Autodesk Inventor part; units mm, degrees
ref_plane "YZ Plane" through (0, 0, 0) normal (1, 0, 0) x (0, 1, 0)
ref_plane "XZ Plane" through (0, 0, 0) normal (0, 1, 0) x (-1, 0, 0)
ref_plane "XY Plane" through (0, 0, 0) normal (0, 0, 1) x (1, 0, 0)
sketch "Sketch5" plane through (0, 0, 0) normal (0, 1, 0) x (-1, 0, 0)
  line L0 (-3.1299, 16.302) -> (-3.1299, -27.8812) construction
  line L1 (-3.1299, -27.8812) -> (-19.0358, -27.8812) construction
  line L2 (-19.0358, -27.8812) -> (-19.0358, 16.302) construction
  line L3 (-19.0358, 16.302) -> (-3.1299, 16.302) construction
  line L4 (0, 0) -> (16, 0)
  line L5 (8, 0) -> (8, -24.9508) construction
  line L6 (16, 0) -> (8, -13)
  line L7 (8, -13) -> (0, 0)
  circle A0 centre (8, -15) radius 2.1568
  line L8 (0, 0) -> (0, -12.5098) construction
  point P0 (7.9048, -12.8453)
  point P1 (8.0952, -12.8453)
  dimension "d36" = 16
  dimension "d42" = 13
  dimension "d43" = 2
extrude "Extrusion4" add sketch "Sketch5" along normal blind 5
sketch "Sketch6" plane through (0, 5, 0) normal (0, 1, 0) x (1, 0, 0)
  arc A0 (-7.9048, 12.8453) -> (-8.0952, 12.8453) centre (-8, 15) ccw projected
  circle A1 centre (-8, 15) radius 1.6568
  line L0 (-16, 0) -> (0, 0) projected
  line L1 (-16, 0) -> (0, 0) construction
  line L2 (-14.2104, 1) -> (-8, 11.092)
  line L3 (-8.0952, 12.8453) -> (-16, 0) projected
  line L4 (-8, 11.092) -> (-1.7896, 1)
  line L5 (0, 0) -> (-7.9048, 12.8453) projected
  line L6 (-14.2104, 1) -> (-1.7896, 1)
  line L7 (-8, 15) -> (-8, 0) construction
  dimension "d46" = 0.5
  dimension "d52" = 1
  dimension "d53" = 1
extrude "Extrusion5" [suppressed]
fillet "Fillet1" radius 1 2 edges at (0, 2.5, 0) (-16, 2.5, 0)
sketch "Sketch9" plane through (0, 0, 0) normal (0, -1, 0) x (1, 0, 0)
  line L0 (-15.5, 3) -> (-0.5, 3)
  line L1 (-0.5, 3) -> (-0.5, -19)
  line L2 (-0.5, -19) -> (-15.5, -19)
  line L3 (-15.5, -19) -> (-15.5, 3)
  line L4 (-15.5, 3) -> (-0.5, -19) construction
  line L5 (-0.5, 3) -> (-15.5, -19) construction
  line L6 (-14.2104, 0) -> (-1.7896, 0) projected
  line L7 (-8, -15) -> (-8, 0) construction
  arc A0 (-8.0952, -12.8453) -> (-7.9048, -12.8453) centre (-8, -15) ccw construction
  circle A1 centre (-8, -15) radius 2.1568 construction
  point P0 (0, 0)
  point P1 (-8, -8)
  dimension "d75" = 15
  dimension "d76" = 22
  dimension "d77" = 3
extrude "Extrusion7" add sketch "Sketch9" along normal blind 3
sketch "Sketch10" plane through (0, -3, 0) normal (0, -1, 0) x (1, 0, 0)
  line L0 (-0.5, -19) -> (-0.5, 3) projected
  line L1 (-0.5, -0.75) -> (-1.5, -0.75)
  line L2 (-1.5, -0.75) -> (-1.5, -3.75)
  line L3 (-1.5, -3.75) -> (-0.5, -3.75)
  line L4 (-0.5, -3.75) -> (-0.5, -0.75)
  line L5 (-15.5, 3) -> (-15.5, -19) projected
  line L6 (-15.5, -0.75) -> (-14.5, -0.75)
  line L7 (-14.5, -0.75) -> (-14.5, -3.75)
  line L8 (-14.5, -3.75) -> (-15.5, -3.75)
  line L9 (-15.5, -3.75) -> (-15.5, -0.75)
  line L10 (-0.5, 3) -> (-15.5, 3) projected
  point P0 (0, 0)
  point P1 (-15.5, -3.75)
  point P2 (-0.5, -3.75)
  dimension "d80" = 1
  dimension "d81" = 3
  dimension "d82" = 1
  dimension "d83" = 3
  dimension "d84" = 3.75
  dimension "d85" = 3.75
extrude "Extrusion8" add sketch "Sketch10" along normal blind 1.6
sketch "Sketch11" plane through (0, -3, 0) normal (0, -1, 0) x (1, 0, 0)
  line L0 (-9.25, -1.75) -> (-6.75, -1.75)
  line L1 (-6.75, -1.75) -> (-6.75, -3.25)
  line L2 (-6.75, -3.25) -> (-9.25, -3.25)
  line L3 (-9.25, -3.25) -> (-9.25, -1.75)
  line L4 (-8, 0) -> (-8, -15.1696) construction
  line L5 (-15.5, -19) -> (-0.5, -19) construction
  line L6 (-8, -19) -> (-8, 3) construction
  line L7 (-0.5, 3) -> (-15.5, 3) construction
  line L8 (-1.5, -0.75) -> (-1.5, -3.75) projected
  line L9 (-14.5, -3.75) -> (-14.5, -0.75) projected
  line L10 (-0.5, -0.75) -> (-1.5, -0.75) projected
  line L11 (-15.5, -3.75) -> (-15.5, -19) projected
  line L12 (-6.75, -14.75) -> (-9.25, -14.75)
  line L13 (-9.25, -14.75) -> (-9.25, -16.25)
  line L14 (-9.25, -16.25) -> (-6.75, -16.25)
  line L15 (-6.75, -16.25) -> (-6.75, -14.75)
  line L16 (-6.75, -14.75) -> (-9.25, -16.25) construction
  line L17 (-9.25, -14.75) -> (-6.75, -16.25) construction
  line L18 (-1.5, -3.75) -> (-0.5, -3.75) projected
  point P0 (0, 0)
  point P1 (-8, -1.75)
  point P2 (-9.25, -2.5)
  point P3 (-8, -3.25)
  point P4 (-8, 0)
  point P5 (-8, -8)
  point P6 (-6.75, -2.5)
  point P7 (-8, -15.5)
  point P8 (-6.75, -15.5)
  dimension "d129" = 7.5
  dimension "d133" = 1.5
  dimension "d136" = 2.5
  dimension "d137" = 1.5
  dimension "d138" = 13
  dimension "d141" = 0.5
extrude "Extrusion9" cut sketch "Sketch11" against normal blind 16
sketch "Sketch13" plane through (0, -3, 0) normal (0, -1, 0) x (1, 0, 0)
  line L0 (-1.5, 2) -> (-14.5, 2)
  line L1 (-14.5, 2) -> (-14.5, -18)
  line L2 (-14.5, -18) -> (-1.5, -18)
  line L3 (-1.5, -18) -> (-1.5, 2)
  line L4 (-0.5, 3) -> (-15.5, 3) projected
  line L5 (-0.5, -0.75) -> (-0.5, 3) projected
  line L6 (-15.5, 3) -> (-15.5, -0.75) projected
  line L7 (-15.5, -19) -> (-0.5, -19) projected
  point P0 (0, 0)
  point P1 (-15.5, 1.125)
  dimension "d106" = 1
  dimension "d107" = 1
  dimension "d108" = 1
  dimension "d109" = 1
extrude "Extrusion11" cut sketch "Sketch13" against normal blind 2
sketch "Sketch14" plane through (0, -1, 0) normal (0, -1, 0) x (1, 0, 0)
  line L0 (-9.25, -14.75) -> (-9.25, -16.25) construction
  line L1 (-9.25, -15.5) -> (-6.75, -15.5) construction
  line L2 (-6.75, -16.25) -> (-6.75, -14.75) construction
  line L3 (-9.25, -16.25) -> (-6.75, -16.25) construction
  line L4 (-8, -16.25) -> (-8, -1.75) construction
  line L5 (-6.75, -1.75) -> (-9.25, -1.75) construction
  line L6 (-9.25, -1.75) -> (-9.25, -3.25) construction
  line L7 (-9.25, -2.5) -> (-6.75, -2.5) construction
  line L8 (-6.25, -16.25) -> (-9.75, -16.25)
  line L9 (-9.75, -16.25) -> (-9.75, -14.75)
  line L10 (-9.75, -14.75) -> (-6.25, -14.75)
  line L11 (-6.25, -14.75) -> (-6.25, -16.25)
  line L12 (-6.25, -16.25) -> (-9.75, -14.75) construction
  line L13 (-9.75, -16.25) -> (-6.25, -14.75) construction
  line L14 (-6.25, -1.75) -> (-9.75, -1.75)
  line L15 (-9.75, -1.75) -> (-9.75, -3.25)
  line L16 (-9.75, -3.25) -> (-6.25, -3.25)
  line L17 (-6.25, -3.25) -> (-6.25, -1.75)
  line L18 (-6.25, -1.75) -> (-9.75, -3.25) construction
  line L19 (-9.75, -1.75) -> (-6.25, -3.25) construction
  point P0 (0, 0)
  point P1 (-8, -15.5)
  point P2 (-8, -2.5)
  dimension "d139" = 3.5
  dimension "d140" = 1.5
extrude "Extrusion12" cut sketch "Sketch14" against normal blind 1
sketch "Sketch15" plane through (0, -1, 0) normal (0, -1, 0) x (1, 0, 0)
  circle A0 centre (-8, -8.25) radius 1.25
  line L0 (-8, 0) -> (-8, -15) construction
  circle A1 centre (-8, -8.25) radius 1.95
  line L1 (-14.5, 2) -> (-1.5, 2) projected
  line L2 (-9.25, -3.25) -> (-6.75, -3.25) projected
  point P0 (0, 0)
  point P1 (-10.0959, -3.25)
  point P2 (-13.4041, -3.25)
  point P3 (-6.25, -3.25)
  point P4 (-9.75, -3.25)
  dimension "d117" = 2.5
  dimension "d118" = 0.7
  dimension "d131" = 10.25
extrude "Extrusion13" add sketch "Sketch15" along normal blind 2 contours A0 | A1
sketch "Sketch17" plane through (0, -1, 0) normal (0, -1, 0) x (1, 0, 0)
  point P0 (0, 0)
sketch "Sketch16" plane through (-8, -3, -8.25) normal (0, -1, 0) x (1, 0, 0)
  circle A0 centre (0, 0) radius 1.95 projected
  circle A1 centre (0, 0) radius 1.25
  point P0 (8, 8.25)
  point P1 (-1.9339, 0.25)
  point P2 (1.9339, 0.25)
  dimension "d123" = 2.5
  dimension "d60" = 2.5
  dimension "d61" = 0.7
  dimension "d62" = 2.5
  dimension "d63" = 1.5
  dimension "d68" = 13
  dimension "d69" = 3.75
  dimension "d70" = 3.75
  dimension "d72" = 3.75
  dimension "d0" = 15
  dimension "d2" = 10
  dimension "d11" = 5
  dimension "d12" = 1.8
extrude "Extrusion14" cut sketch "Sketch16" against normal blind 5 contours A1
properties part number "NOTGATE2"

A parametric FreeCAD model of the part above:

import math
import FreeCAD as App
import Part
import Sketcher

V = App.Vector
Q = App.Units.Quantity


def edges_at(feature, points):
    """Names of the edges that pass closest to the given points."""
    edges = feature.Shape.Edges
    near = lambda p: min(range(len(edges)), key=lambda i: edges[i].distToShape(Part.Vertex(*p))[0])
    return sorted({f"Edge{near(p) + 1}" for p in points})


def add_polygon(sketch, points):
    """Adds a closed chain of lines whose ends are joined by coincident constraints."""
    first, n = sketch.GeometryCount, len(points)
    for a, b in zip(points, points[1:] + points[:1]):
        sketch.addGeometry(Part.LineSegment(App.Vector(*a, 0), App.Vector(*b, 0)), False)
    for i in range(n):
        sketch.addConstraint(Sketcher.Constraint("Coincident", first + i, 2, first + (i + 1) % n, 1))

doc = App.newDocument("Part")
body = doc.addObject("PartDesign::Body", "Body")

# Sketch on XZ plane
sketch1 = body.newObject("Sketcher::SketchObject", "Sketch")
sketch1.AttachmentSupport = (doc.getObject("XZ_Plane"), [""])
sketch1.MapMode = "FlatFace"
sketch1.addGeometry([
    Part.LineSegment(V(-16, 0, 0), V(0, 0, 0)),
    Part.LineSegment(V(0, 0, 0), V(-7.904801, -12.845302, 0)),
    Part.ArcOfCircle(Part.Circle(V(-8, -15, 0), V(0, 0, 1), 2.1568), math.radians(92.529794), math.radians(447.470206)),
    Part.LineSegment(V(-8.095199, -12.845302, 0), V(-16, 0, 0)),
], False)
sketch1.addConstraint([
    Sketcher.Constraint("Coincident", 0, 2, 1, 1),
    Sketcher.Constraint("Coincident", 1, 2, 2, 2),
    Sketcher.Constraint("Coincident", 2, 1, 3, 1),
    Sketcher.Constraint("Coincident", 3, 2, 0, 1),
    Sketcher.Constraint("Horizontal", 0),
    Sketcher.Constraint("Coincident", 0, 2, -1, 1),
    Sketcher.Constraint("Horizontal", 1, 2, 2, 1),
    Sketcher.Constraint("Equal", 1, 3),
    Sketcher.Constraint("DistanceX", 0, 1, 0, 2, Q("16 mm")),
    Sketcher.Constraint("DistanceY", 2, 3, -1, 1, Q("15 mm")),
    Sketcher.Constraint("Radius", 2, Q("2.1568 mm")),
    Sketcher.Constraint("Distance", 1, Q("15.0827 mm")),
])
pad1 = body.newObject("PartDesign::Pad", "Pad")
pad1.Profile = sketch1
pad1.Length = 5
pad1.Reversed = True
doc.recompute()

fillet = body.newObject("PartDesign::Fillet", "Fillet")
fillet.Base = (pad1, edges_at(pad1, [(0, 2.5, 0), (-16, 2.5, 0)]))
fillet.Radius = 1

# Sketch on XZ plane
sketch2 = body.newObject("Sketcher::SketchObject", "Sketch001")
sketch2.AttachmentSupport = (doc.getObject("XZ_Plane"), [""])
sketch2.MapMode = "FlatFace"
add_polygon(sketch2, [(-0.5, 3), (-15.5, 3), (-15.5, -19), (-0.5, -19)])  # lines 0-3
sketch2.addConstraint([
    Sketcher.Constraint("Horizontal", 0),
    Sketcher.Constraint("Vertical", 1),
    Sketcher.Constraint("Horizontal", 2),
    Sketcher.Constraint("Vertical", 3),
    Sketcher.Constraint("DistanceX", 0, 2, 0, 1, Q("15 mm")),
    Sketcher.Constraint("DistanceY", 1, 2, 1, 1, Q("22 mm")),
    Sketcher.Constraint("DistanceY", -1, 1, 0, 2, Q("3 mm")),
    Sketcher.Constraint("DistanceX", 0, 2, -1, 1, Q("15.5 mm")),
])
pad2 = body.newObject("PartDesign::Pad", "Pad001")
pad2.Profile = sketch2
pad2.Length = 3

# Sketch on XZ plane
sketch3 = body.newObject("Sketcher::SketchObject", "Sketch002")
sketch3.AttachmentSupport = (doc.getObject("XZ_Plane"), [""])
sketch3.MapMode = "FlatFace"
sketch3.AttachmentOffset = App.Placement(V(0, 0, 3), App.Rotation())
add_polygon(sketch3, [(-1.5, -3.75), (-0.5, -3.75), (-0.5, -0.75), (-1.5, -0.75)])  # lines 0-3
add_polygon(sketch3, [(-14.5, -0.75), (-15.5, -0.75), (-15.5, -3.75), (-14.5, -3.75)])  # lines 4-7
sketch3.addConstraint([
    Sketcher.Constraint("Horizontal", 0),
    Sketcher.Constraint("Vertical", 1),
    Sketcher.Constraint("Horizontal", 2),
    Sketcher.Constraint("Vertical", 3),
    Sketcher.Constraint("Horizontal", 4),
    Sketcher.Constraint("Vertical", 5),
    Sketcher.Constraint("Horizontal", 6),
    Sketcher.Constraint("Vertical", 7),
    Sketcher.Constraint("Horizontal", 2, 2, 4, 2),
    Sketcher.Constraint("Horizontal", 3, 2, 5, 2),
    Sketcher.Constraint("Equal", 2, 4),
    Sketcher.Constraint("DistanceX", 0, 1, 0, 2, Q("1 mm")),
    Sketcher.Constraint("DistanceY", 1, 1, 1, 2, Q("3 mm")),
    Sketcher.Constraint("DistanceY", 0, 2, -1, 1, Q("3.75 mm")),
    Sketcher.Constraint("DistanceX", 4, 2, 2, 2, Q("14 mm")),
    Sketcher.Constraint("DistanceX", 0, 2, -1, 1, Q("0.5 mm")),
])
pad3 = body.newObject("PartDesign::Pad", "Pad002")
pad3.Profile = sketch3
pad3.Length = 1.6

# Sketch on XZ plane
sketch4 = body.newObject("Sketcher::SketchObject", "Sketch003")
sketch4.AttachmentSupport = (doc.getObject("XZ_Plane"), [""])
sketch4.MapMode = "FlatFace"
sketch4.AttachmentOffset = App.Placement(V(0, 0, 3), App.Rotation())
add_polygon(sketch4, [(-6.75, -1.75), (-9.25, -1.75), (-9.25, -3.25), (-6.75, -3.25)])  # lines 0-3
add_polygon(sketch4, [(-6.75, -16.25), (-6.75, -14.75), (-9.25, -14.75), (-9.25, -16.25)])  # lines 4-7
sketch4.addConstraint([
    Sketcher.Constraint("Horizontal", 0),
    Sketcher.Constraint("Vertical", 1),
    Sketcher.Constraint("Horizontal", 2),
    Sketcher.Constraint("Vertical", 3),
    Sketcher.Constraint("Vertical", 4),
    Sketcher.Constraint("Horizontal", 5),
    Sketcher.Constraint("Vertical", 6),
    Sketcher.Constraint("Horizontal", 7),
    Sketcher.Constraint("Vertical", 3, 2, 4, 2),
    Sketcher.Constraint("Vertical", 1, 2, 5, 2),
    Sketcher.Constraint("Equal", 3, 4),
    Sketcher.Constraint("DistanceX", 0, 2, 0, 1, Q("2.5 mm")),
    Sketcher.Constraint("DistanceY", 1, 2, 1, 1, Q("1.5 mm")),
    Sketcher.Constraint("DistanceY", 4, 2, 3, 2, Q("13 mm")),
    Sketcher.Constraint("DistanceX", 0, 2, -1, 1, Q("9.25 mm")),
    Sketcher.Constraint("DistanceY", 0, 2, -1, 1, Q("1.75 mm")),
])
pocket1 = body.newObject("PartDesign::Pocket", "Pocket")
pocket1.Profile = sketch4
pocket1.Length = 16

# Sketch on XZ plane
sketch5 = body.newObject("Sketcher::SketchObject", "Sketch004")
sketch5.AttachmentSupport = (doc.getObject("XZ_Plane"), [""])
sketch5.MapMode = "FlatFace"
sketch5.AttachmentOffset = App.Placement(V(0, 0, 3), App.Rotation())
add_polygon(sketch5, [(-1.5, -18), (-1.5, 2), (-14.5, 2), (-14.5, -18)])  # lines 0-3
sketch5.addConstraint([
    Sketcher.Constraint("Vertical", 0),
    Sketcher.Constraint("Horizontal", 1),
    Sketcher.Constraint("Vertical", 2),
    Sketcher.Constraint("Horizontal", 3),
    Sketcher.Constraint("DistanceX", 1, 2, 1, 1, Q("13 mm")),
    Sketcher.Constraint("DistanceY", 0, 1, 0, 2, Q("20 mm")),
    Sketcher.Constraint("DistanceY", -1, 1, 0, 2, Q("2 mm")),
    Sketcher.Constraint("DistanceX", 0, 2, -1, 1, Q("1.5 mm")),
])
pocket2 = body.newObject("PartDesign::Pocket", "Pocket001")
pocket2.Profile = sketch5
pocket2.Length = 2

# Sketch on XZ plane
sketch6 = body.newObject("Sketcher::SketchObject", "Sketch005")
sketch6.AttachmentSupport = (doc.getObject("XZ_Plane"), [""])
sketch6.MapMode = "FlatFace"
sketch6.AttachmentOffset = App.Placement(V(0, 0, 1), App.Rotation())
add_polygon(sketch6, [(-9.75, -16.25), (-6.25, -16.25), (-6.25, -14.75), (-9.75, -14.75)])  # lines 0-3
add_polygon(sketch6, [(-6.25, -3.25), (-6.25, -1.75), (-9.75, -1.75), (-9.75, -3.25)])  # lines 4-7
sketch6.addConstraint([
    Sketcher.Constraint("Horizontal", 0),
    Sketcher.Constraint("Vertical", 1),
    Sketcher.Constraint("Horizontal", 2),
    Sketcher.Constraint("Vertical", 3),
    Sketcher.Constraint("Vertical", 4),
    Sketcher.Constraint("Horizontal", 5),
    Sketcher.Constraint("Vertical", 6),
    Sketcher.Constraint("Horizontal", 7),
    Sketcher.Constraint("Vertical", 1, 2, 4, 2),
    Sketcher.Constraint("Vertical", 3, 2, 5, 2),
    Sketcher.Constraint("Equal", 3, 4),
    Sketcher.Constraint("DistanceX", 0, 1, 0, 2, Q("3.5 mm")),
    Sketcher.Constraint("DistanceY", 1, 1, 1, 2, Q("1.5 mm")),
    Sketcher.Constraint("DistanceY", 1, 2, 4, 2, Q("13 mm")),
    Sketcher.Constraint("DistanceX", 0, 2, -1, 1, Q("6.25 mm")),
    Sketcher.Constraint("DistanceY", 0, 2, -1, 1, Q("16.25 mm")),
])
pocket3 = body.newObject("PartDesign::Pocket", "Pocket002")
pocket3.Profile = sketch6
pocket3.Length = 1

# Sketch on XZ plane
sketch7 = body.newObject("Sketcher::SketchObject", "Sketch006")
sketch7.AttachmentSupport = (doc.getObject("XZ_Plane"), [""])
sketch7.MapMode = "FlatFace"
sketch7.AttachmentOffset = App.Placement(V(0, 0, 1), App.Rotation())
sketch7.addGeometry(Part.Circle(V(-8, -8.25, 0), V(0, 0, 1), 1.95), False)
sketch7.addConstraint([
    Sketcher.Constraint("Diameter", 0, Q("3.9 mm")),
    Sketcher.Constraint("DistanceX", 0, 3, -1, 1, Q("8 mm")),
    Sketcher.Constraint("DistanceY", 0, 3, -1, 1, Q("8.25 mm")),
])
pad4 = body.newObject("PartDesign::Pad", "Pad003")
pad4.Profile = sketch7
pad4.Length = 2

# Sketch on XZ plane
sketch8 = body.newObject("Sketcher::SketchObject", "Sketch007")
sketch8.AttachmentSupport = (doc.getObject("XZ_Plane"), [""])
sketch8.MapMode = "FlatFace"
sketch8.AttachmentOffset = App.Placement(V(0, 0, 3), App.Rotation())
sketch8.addGeometry(Part.Circle(V(-8, -8.25, 0), V(0, 0, 1), 1.25), False)
sketch8.addConstraint([
    Sketcher.Constraint("Diameter", 0, Q("2.5 mm")),
    Sketcher.Constraint("DistanceX", 0, 3, -1, 1, Q("8 mm")),
    Sketcher.Constraint("DistanceY", 0, 3, -1, 1, Q("8.25 mm")),
])
pocket4 = body.newObject("PartDesign::Pocket", "Pocket003")
pocket4.Profile = sketch8
pocket4.Length = 5

doc.recompute()
